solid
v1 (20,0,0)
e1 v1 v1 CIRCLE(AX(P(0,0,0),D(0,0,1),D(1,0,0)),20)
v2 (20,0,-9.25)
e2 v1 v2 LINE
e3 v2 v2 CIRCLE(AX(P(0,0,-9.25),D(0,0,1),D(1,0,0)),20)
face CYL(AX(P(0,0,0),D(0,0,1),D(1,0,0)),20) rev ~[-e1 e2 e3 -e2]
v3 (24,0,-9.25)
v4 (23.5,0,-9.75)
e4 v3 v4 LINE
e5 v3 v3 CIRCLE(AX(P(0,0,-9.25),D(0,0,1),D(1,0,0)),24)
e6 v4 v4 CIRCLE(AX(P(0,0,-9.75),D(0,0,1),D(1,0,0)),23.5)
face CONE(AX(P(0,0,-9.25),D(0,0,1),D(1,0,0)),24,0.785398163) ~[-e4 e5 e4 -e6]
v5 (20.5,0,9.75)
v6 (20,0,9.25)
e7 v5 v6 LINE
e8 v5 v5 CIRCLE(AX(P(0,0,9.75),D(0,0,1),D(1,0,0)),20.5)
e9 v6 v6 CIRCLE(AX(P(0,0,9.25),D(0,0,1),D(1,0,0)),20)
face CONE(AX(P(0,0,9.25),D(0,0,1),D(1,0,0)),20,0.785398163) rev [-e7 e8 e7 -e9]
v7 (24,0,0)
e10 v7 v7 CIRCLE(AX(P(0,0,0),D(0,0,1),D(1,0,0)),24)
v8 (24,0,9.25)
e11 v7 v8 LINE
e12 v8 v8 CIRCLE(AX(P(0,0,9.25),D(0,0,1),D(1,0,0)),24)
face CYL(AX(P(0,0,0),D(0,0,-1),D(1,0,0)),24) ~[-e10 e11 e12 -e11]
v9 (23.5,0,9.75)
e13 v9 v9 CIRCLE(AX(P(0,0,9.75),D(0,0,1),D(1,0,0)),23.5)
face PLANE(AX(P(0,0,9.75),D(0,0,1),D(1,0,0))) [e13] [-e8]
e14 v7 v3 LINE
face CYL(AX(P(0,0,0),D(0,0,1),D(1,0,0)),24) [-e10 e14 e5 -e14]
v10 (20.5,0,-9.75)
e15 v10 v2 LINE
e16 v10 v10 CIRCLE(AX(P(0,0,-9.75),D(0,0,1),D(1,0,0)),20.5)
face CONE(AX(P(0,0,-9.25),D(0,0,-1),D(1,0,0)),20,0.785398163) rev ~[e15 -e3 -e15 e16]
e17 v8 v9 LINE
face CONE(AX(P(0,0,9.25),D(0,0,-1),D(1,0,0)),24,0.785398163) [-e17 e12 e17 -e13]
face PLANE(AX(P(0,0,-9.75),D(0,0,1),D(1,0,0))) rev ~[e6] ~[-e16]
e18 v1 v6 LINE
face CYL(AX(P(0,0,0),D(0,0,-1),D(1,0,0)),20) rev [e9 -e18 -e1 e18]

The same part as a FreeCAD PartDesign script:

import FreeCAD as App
import Part
import Sketcher

V = App.Vector
Q = App.Units.Quantity


def edges_at(feature, points):
    """Names of the edges that pass closest to the given points."""
    edges = feature.Shape.Edges
    near = lambda p: min(range(len(edges)), key=lambda i: edges[i].distToShape(Part.Vertex(*p))[0])
    return sorted({f"Edge{near(p) + 1}" for p in points})

doc = App.newDocument("Part")
body = doc.addObject("PartDesign::Body", "Body")

sketch1 = doc.addObject("Sketcher::SketchObject", "Sketch")
body.addObject(sketch1)
sketch1.AttachmentSupport = (doc.XY_Plane, [""])
sketch1.MapMode = "FlatFace"
sketch1.addGeometry(Part.Circle(V(0, 0, 0), V(0, 0, 1), 24), False)
sketch1.addGeometry(Part.Circle(V(0, 0, 0), V(0, 0, 1), 20), False)
sketch1.addConstraint(Sketcher.Constraint("Coincident", 0, 3, -1, 1))
sketch1.addConstraint(Sketcher.Constraint("Coincident", 1, 3, -1, 1))
sketch1.addConstraint(Sketcher.Constraint("Diameter", 0, Q("48 mm")))
sketch1.addConstraint(Sketcher.Constraint("Diameter", 1, Q("40 mm")))
pad1 = doc.addObject("PartDesign::Pad", "Pad")
body.addObject(pad1)
pad1.Profile = sketch1
pad1.Length = 19.5
pad1.Midplane = True
doc.recompute()

chamfer = doc.addObject("PartDesign::Chamfer", "Chamfer")
body.addObject(chamfer)
chamfer.Base = (pad1, edges_at(pad1, [
    (-24, 0, 9.75),
    (-20, 0, 9.75),
    (-20, 0, -9.75),
    (-24, 0, -9.75),
]))
chamfer.Size = 0.5

doc.recompute()
